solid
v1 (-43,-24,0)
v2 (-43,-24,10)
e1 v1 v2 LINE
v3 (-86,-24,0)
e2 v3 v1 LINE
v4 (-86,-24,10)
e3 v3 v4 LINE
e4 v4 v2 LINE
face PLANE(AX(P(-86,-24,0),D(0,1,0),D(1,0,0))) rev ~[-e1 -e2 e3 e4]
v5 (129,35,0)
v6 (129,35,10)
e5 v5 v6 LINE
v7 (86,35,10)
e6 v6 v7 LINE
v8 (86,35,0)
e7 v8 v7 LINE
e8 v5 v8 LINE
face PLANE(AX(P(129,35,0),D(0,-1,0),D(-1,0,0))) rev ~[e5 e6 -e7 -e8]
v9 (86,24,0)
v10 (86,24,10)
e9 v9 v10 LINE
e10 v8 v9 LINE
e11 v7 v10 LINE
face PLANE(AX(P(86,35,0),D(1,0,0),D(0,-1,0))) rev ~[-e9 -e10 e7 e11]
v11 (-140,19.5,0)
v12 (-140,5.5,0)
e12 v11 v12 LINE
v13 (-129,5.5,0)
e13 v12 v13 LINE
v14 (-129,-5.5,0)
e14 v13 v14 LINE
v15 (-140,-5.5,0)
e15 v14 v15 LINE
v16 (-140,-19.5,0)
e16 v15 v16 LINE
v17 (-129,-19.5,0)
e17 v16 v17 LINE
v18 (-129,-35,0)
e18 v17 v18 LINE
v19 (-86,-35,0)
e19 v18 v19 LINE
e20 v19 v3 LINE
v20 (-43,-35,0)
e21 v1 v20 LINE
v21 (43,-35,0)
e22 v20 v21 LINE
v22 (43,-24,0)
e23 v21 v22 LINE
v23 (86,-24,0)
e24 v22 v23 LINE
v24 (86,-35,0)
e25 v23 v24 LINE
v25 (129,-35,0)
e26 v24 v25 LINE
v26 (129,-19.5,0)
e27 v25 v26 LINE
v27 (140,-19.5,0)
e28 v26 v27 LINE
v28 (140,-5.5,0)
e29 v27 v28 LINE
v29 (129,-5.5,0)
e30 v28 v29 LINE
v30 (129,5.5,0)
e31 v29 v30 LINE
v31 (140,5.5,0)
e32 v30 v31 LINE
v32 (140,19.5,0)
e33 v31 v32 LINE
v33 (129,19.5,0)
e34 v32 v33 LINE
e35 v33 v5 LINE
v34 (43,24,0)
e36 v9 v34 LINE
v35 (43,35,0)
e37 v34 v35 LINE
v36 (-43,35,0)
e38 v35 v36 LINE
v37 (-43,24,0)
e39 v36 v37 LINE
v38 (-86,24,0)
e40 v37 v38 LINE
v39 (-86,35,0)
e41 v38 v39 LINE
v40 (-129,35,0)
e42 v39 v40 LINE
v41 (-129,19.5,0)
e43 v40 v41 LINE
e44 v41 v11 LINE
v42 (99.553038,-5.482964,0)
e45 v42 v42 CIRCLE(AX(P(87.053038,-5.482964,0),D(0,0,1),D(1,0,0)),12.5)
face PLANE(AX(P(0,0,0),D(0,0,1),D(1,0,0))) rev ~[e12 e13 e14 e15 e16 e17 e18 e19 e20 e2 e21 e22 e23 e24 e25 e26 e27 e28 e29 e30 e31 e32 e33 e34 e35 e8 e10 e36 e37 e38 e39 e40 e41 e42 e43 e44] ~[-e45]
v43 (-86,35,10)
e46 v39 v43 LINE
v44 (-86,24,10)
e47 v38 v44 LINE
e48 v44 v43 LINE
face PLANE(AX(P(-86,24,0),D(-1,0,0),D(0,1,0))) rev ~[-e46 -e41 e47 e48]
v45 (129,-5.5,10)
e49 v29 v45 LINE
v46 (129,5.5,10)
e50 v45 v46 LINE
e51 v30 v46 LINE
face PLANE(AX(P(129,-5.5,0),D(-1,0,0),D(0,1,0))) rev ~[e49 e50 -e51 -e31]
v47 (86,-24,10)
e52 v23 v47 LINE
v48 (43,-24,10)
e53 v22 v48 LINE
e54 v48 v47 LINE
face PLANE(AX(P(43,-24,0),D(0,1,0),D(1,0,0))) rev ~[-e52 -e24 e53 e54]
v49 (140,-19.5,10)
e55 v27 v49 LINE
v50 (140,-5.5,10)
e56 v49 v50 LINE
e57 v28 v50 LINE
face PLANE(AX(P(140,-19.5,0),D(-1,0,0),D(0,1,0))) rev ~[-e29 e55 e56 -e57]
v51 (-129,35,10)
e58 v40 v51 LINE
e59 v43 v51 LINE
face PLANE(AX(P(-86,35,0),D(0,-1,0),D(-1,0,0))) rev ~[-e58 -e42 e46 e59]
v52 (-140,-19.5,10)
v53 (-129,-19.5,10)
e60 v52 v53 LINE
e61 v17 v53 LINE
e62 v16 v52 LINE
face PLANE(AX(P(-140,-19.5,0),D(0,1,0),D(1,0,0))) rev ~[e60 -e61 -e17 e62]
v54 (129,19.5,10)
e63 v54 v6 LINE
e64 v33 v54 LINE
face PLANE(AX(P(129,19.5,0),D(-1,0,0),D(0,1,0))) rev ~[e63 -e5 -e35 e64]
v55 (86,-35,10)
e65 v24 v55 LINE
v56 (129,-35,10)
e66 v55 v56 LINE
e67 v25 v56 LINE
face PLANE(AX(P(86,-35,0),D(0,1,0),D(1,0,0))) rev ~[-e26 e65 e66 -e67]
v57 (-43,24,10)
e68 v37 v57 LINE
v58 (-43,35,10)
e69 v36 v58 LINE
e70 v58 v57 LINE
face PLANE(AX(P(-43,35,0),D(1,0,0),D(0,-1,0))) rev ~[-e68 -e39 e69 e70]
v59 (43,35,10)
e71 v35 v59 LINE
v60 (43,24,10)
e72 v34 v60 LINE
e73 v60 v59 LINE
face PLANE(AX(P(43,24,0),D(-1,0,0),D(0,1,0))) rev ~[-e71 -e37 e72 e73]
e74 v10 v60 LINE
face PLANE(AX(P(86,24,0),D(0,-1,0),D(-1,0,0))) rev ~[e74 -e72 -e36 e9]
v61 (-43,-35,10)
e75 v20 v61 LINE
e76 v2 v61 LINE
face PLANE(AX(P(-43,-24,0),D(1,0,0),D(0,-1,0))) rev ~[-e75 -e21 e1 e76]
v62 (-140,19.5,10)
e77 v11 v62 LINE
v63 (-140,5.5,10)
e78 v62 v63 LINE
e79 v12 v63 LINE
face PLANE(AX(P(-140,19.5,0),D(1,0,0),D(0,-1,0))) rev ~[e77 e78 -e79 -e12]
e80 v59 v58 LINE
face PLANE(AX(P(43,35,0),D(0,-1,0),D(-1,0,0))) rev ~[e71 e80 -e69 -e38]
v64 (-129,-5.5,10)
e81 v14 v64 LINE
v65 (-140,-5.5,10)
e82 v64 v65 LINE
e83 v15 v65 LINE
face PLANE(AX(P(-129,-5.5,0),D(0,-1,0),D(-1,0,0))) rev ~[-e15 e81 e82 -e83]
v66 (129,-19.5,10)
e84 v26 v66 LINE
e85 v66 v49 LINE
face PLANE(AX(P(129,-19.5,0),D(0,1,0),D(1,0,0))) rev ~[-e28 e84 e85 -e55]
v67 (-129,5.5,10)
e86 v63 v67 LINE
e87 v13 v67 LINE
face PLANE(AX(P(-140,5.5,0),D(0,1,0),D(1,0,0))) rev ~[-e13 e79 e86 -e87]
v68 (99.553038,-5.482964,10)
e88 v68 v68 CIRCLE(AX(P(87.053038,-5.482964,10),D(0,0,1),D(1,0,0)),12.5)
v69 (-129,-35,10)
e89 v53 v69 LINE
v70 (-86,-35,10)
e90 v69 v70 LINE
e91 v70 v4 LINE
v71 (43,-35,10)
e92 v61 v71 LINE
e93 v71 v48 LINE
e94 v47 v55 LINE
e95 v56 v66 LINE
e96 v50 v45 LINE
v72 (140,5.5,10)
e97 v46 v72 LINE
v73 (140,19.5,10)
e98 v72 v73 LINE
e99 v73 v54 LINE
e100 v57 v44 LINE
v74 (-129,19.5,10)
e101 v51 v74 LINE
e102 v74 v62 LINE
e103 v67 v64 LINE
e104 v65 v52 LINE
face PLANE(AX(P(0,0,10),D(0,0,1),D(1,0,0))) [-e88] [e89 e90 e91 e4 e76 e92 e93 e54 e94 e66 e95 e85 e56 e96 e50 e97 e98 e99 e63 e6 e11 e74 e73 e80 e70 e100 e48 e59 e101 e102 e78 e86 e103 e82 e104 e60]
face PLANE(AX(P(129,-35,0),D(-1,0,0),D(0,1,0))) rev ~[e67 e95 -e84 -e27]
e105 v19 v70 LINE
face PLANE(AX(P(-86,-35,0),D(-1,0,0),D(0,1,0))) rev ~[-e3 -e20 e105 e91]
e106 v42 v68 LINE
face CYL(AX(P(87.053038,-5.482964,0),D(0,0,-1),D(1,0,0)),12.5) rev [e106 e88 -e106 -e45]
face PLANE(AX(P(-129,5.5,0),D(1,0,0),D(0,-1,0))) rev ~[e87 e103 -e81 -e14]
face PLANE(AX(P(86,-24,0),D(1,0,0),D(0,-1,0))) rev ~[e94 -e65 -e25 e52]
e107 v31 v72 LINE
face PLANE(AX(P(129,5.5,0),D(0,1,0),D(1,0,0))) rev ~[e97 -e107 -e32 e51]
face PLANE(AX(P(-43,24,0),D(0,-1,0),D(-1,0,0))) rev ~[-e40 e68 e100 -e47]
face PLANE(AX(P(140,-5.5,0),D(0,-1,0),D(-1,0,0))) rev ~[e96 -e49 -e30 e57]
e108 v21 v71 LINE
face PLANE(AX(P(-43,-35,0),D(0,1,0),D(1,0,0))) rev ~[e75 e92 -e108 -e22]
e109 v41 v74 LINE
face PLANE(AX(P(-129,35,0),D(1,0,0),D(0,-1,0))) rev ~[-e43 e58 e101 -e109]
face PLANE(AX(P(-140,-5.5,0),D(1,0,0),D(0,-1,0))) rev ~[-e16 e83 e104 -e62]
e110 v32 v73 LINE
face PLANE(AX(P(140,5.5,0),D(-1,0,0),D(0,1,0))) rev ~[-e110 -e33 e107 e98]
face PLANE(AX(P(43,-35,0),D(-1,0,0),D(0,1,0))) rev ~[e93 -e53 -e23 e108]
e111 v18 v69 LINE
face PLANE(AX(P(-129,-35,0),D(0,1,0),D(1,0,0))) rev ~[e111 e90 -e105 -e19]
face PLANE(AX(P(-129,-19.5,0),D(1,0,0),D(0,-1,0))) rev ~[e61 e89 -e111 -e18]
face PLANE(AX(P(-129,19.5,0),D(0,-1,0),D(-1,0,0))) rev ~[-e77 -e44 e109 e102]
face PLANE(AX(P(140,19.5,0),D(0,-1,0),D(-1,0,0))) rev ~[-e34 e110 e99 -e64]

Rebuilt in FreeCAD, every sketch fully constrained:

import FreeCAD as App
import Part
import Sketcher
from FreeCAD import Vector
Q = App.Units.Quantity


def add_polygon(sketch, points):
    """Adds a closed chain of lines whose ends are joined by coincident constraints."""
    first, n = sketch.GeometryCount, len(points)
    for a, b in zip(points, points[1:] + points[:1]):
        sketch.addGeometry(Part.LineSegment(App.Vector(*a, 0), App.Vector(*b, 0)), False)
    for i in range(n):
        sketch.addConstraint(Sketcher.Constraint("Coincident", first + i, 2, first + (i + 1) % n, 1))

doc = App.newDocument("Part")
body = doc.addObject("PartDesign::Body", "Body")

# Sketch on XY plane
sketch1 = body.newObject("Sketcher::SketchObject", "Sketch")
sketch1.AttachmentSupport = (doc.getObject("XY_Plane"), [""])
sketch1.MapMode = "FlatFace"
add_polygon(sketch1, [(129, 20), (129, 35), (86, 35), (86, 24), (43, 24), (43, 35), (-43, 35), (-43, 24), (-86, 24), (-86, 35), (-129, 35), (-129, 20), (-140, 20), (-140, 6), (-129, 6), (-129, -6), (-140, -6), (-140, -20), (-129, -20), (-129, -35), (-86, -35), (-86, -24), (-43, -24), (-43, -35), (43, -35), (43, -24), (86, -24), (86, -35), (129, -35), (129, -20), (140, -20), (140, -6), (129, -6), (129, 6), (140, 6), (140, 20)])  # lines 0-35
sketch1.addGeometry(Part.Circle(Vector(87, -5, 0), Vector(0, 0, 1), 12), False)  # 36
sketch1.addConstraint(Sketcher.Constraint("Vertical", 0))
sketch1.addConstraint(Sketcher.Constraint("Horizontal", 1))
sketch1.addConstraint(Sketcher.Constraint("Vertical", 2))
sketch1.addConstraint(Sketcher.Constraint("Horizontal", 3))
sketch1.addConstraint(Sketcher.Constraint("Vertical", 4))
sketch1.addConstraint(Sketcher.Constraint("Horizontal", 5))
sketch1.addConstraint(Sketcher.Constraint("Vertical", 6))
sketch1.addConstraint(Sketcher.Constraint("Horizontal", 7))
sketch1.addConstraint(Sketcher.Constraint("Vertical", 8))
sketch1.addConstraint(Sketcher.Constraint("Horizontal", 9))
sketch1.addConstraint(Sketcher.Constraint("Vertical", 10))
sketch1.addConstraint(Sketcher.Constraint("Horizontal", 11))
sketch1.addConstraint(Sketcher.Constraint("Vertical", 12))
sketch1.addConstraint(Sketcher.Constraint("Horizontal", 13))
sketch1.addConstraint(Sketcher.Constraint("Vertical", 14))
sketch1.addConstraint(Sketcher.Constraint("Horizontal", 15))
sketch1.addConstraint(Sketcher.Constraint("Vertical", 16))
sketch1.addConstraint(Sketcher.Constraint("Horizontal", 17))
sketch1.addConstraint(Sketcher.Constraint("Vertical", 18))
sketch1.addConstraint(Sketcher.Constraint("Horizontal", 19))
sketch1.addConstraint(Sketcher.Constraint("Vertical", 20))
sketch1.addConstraint(Sketcher.Constraint("Horizontal", 21))
sketch1.addConstraint(Sketcher.Constraint("Vertical", 22))
sketch1.addConstraint(Sketcher.Constraint("Horizontal", 23))
sketch1.addConstraint(Sketcher.Constraint("Vertical", 24))
sketch1.addConstraint(Sketcher.Constraint("Horizontal", 25))
sketch1.addConstraint(Sketcher.Constraint("Vertical", 26))
sketch1.addConstraint(Sketcher.Constraint("Horizontal", 27))
sketch1.addConstraint(Sketcher.Constraint("Vertical", 28))
sketch1.addConstraint(Sketcher.Constraint("Horizontal", 29))
sketch1.addConstraint(Sketcher.Constraint("Vertical", 30))
sketch1.addConstraint(Sketcher.Constraint("Horizontal", 31))
sketch1.addConstraint(Sketcher.Constraint("Vertical", 32))
sketch1.addConstraint(Sketcher.Constraint("Horizontal", 33))
sketch1.addConstraint(Sketcher.Constraint("Vertical", 34))
sketch1.addConstraint(Sketcher.Constraint("Horizontal", 35))
sketch1.addConstraint(Sketcher.Constraint("Symmetric", 0, 2, 18, 2, -1, 1))
sketch1.addConstraint(Sketcher.Constraint("Symmetric", 2, 2, 20, 2, -1, 1))
sketch1.addConstraint(Sketcher.Constraint("Symmetric", 4, 2, 22, 2, -1, 1))
sketch1.addConstraint(Sketcher.Constraint("Symmetric", 6, 2, 24, 2, -1, 1))
sketch1.addConstraint(Sketcher.Constraint("Symmetric", 8, 2, 26, 2, -1, 1))
sketch1.addConstraint(Sketcher.Constraint("Symmetric", 10, 2, 28, 2, -1, 1))
sketch1.addConstraint(Sketcher.Constraint("Symmetric", 12, 2, 30, 2, -1, 1))
sketch1.addConstraint(Sketcher.Constraint("Symmetric", 14, 2, 32, 2, -1, 1))
sketch1.addConstraint(Sketcher.Constraint("Symmetric", 16, 2, 34, 2, -1, 1))
sketch1.addConstraint(Sketcher.Constraint("Symmetric", 3, 2, 6, 2, -2))
sketch1.addConstraint(Sketcher.Constraint("Symmetric", 1, 2, 8, 2, -2))
sketch1.addConstraint(Sketcher.Constraint("Symmetric", 17, 2, 28, 2, -2))
sketch1.addConstraint(Sketcher.Constraint("Symmetric", 15, 2, 30, 2, -2))
sketch1.addConstraint(Sketcher.Constraint("Horizontal", 1, 2, 4, 2))
sketch1.addConstraint(Sketcher.Constraint("Vertical", 10, 2, 13, 2))
sketch1.addConstraint(Sketcher.Constraint("Equal", 1, 3))
sketch1.addConstraint(Sketcher.Constraint("Equal", 35, 2))
sketch1.addConstraint(Sketcher.Constraint("Equal", 8, 14))
sketch1.addConstraint(Sketcher.Constraint("Diameter", 36, Q("25 mm")))
sketch1.addConstraint(Sketcher.Constraint("DistanceX", 1, 2, 1, 1, Q("43 mm")))
sketch1.addConstraint(Sketcher.Constraint("DistanceX", 5, 2, 5, 1, Q("86 mm")))
sketch1.addConstraint(Sketcher.Constraint("DistanceX", 11, 2, 11, 1, Q("11 mm")))
sketch1.addConstraint(Sketcher.Constraint("DistanceY", 12, 2, 12, 1, Q("14 mm")))
sketch1.addConstraint(Sketcher.Constraint("DistanceY", 0, 1, 0, 2, Q("15.5 mm")))
sketch1.addConstraint(Sketcher.Constraint("DistanceX", -1, 1, 36, 3, Q("87.053038 mm")))
sketch1.addConstraint(Sketcher.Constraint("DistanceY", 36, 3, -1, 1, Q("5.482964 mm")))
pad1 = body.newObject("PartDesign::Pad", "Pad")
pad1.Profile = sketch1
pad1.Length = 10

doc.recompute()
